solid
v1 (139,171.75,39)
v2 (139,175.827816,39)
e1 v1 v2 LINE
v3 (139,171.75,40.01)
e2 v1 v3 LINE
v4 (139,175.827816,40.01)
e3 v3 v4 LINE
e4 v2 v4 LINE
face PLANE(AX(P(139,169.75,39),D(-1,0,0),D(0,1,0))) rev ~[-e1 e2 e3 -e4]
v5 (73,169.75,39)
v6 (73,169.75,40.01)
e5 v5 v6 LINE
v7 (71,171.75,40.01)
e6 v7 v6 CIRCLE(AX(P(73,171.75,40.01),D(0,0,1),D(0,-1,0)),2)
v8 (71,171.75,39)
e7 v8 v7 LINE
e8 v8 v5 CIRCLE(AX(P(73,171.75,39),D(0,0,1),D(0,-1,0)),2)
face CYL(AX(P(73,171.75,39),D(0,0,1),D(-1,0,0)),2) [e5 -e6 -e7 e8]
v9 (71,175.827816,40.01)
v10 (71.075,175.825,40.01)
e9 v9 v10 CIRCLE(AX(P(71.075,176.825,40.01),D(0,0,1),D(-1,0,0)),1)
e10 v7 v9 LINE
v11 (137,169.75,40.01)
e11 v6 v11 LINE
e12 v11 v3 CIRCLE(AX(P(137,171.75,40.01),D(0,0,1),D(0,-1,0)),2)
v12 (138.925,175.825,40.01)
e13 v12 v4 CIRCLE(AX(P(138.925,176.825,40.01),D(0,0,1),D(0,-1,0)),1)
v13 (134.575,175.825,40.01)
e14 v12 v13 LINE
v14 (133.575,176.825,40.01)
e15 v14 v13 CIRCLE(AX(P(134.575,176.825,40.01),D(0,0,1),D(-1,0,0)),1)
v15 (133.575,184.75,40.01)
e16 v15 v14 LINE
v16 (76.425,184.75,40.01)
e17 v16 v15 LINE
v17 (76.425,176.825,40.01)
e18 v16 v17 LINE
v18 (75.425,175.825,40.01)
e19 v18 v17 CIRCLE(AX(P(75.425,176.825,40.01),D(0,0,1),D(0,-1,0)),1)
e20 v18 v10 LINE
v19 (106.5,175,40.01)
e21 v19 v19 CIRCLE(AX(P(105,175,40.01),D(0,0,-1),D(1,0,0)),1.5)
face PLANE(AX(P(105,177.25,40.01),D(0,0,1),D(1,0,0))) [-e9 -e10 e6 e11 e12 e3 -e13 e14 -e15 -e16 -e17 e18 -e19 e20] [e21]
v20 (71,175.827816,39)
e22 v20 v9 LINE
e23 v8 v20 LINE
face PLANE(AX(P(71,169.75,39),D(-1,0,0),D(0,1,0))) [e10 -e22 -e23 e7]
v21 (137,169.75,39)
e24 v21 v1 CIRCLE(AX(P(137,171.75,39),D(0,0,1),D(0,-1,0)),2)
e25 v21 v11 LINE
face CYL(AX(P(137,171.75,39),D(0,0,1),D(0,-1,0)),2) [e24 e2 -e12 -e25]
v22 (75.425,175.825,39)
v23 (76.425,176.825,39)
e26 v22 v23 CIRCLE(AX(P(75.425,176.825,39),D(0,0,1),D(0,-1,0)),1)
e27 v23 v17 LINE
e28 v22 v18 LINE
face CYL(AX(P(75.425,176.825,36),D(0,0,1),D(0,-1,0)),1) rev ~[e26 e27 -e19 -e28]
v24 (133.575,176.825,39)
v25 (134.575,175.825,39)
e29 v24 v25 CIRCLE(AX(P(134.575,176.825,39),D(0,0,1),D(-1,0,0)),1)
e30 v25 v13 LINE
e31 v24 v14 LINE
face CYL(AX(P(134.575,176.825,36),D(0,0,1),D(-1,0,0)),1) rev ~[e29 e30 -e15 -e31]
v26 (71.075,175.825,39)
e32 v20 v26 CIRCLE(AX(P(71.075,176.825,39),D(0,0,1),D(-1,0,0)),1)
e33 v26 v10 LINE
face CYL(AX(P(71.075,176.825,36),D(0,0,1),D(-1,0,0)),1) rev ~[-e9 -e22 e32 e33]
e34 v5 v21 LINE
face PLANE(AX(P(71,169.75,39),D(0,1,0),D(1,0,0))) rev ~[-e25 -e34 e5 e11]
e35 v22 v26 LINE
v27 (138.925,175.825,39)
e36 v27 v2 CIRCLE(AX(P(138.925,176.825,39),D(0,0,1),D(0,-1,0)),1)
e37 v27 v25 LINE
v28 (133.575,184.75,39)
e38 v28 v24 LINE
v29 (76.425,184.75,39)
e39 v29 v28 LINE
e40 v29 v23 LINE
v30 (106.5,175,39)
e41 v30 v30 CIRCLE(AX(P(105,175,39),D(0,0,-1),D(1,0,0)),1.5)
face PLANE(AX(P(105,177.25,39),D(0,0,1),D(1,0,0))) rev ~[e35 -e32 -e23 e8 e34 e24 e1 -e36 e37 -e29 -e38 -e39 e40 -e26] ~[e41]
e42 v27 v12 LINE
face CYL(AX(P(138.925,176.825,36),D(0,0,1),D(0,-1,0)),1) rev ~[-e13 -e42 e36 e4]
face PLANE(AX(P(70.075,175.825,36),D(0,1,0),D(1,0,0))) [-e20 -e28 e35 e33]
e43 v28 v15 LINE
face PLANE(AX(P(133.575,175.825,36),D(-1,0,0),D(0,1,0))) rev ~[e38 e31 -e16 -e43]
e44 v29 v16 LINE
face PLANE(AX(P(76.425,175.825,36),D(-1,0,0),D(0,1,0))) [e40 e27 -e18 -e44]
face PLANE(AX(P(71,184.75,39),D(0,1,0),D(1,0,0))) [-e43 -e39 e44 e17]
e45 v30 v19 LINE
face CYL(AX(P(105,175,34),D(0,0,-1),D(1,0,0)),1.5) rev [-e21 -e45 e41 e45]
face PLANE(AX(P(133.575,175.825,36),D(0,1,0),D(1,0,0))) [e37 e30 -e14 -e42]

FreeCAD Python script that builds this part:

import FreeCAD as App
import Part
import Sketcher

V = App.Vector
Q = App.Units.Quantity


def edges_at(feature, points):
    """Names of the edges that pass closest to the given points."""
    edges = feature.Shape.Edges
    near = lambda p: min(range(len(edges)), key=lambda i: edges[i].distToShape(Part.Vertex(*p))[0])
    return sorted({f"Edge{near(p) + 1}" for p in points})


def add_polygon(sketch, points):
    """Adds a closed chain of lines whose ends are joined by coincident constraints."""
    first, n = sketch.GeometryCount, len(points)
    for a, b in zip(points, points[1:] + points[:1]):
        sketch.addGeometry(Part.LineSegment(App.Vector(*a, 0), App.Vector(*b, 0)), False)
    for i in range(n):
        sketch.addConstraint(Sketcher.Constraint("Coincident", first + i, 2, first + (i + 1) % n, 1))

doc = App.newDocument("Part")
params = doc.addObject("Spreadsheet::Sheet", "Params")
for row, (alias, value) in enumerate([
    ("sketch1_diameter", "3 mm"),
    ("pad1_length", "10 mm"),
    ("pad2_length", "56.5 mm"),
    ("pad3_length", "55.5 mm"),
    ("sketch4_height", "15 mm"),
    ("sketch4_width", "6.35 mm"),
    ("pad4_length", "10 mm"),
    ("fillet_radius", "1 mm"),
    ("sketch5_height", "15 mm"),
    ("sketch5_width", "6.35 mm"),
    ("pad5_length", "10 mm"),
    ("fillet2_radius", "1 mm"),
    ("sketch6_width", "68 mm"),
    ("sketch6_height", "15 mm"),
    ("pad6_length", "1.01 mm"),
    ("fillet3_radius", "2 mm"),
], start=1):
    params.set(f"A{row}", alias)
    params.set(f"B{row}", "=" + value)
    params.setAlias(f"B{row}", alias)

body = doc.addObject("PartDesign::Body", "Body")

# Sketch on XY plane
sketch1 = doc.addObject("Sketcher::SketchObject", "Sketch")
body.addObject(sketch1)
sketch1.AttachmentSupport = (doc.XY_Plane, [""])
sketch1.MapMode = "FlatFace"
sketch1.AttachmentOffset = App.Placement(V(0, 0, 34), App.Rotation())
sketch1.addGeometry(Part.Circle(V(105, 175, 0), V(0, 0, 1), 1.5), False)
sketch1.addConstraint(Sketcher.Constraint("Diameter", 0, Q("3 mm")))
sketch1.addConstraint(Sketcher.Constraint("DistanceX", -1, 1, 0, 3, Q("105 mm")))
sketch1.addConstraint(Sketcher.Constraint("DistanceY", -1, 1, 0, 3, Q("175 mm")))
sketch1.setExpression("Constraints[0]", "Params.sketch1_diameter")
pad1 = doc.addObject("PartDesign::Pad", "Pad")
body.addObject(pad1)
pad1.Profile = sketch1
pad1.setExpression("Length", "Params.pad1_length")
body2 = doc.addObject("PartDesign::Body", "Body001")

# Sketch on XY plane
sketch2 = doc.addObject("Sketcher::SketchObject", "Sketch001")
body2.addObject(sketch2)
sketch2.AttachmentSupport = (doc.getObject("XY_Plane001"), [""])
sketch2.MapMode = "FlatFace"
sketch2.AttachmentOffset = App.Placement(V(0, 0, 4), App.Rotation())
sketch2.addGeometry(Part.Circle(V(73.2, 179.8, 0), V(0, 0, 1), 2.6), False)
sketch2.addConstraint(Sketcher.Constraint("DistanceX", -1, 1, 0, 3, Q("73.25 mm")))
sketch2.addConstraint(Sketcher.Constraint("DistanceY", -1, 1, 0, 3, Q("179.75 mm")))
sketch2.addConstraint(Sketcher.Constraint("Diameter", 0, Q("5.159374 mm")))
pad2 = doc.addObject("PartDesign::Pad", "Pad001")
body2.addObject(pad2)
pad2.Profile = sketch2
pad2.setExpression("Length", "Params.pad2_length")
body3 = doc.addObject("PartDesign::Body", "Body002")

# Sketch on XY plane
sketch3 = doc.addObject("Sketcher::SketchObject", "Sketch002")
body3.addObject(sketch3)
sketch3.AttachmentSupport = (doc.getObject("XY_Plane002"), [""])
sketch3.MapMode = "FlatFace"
sketch3.AttachmentOffset = App.Placement(V(0, 0, 4), App.Rotation())
sketch3.addGeometry(Part.Circle(V(136.8, 179.8, 0), V(0, 0, 1), 2.6), False)
sketch3.addConstraint(Sketcher.Constraint("DistanceX", -1, 1, 0, 3, Q("136.75 mm")))
sketch3.addConstraint(Sketcher.Constraint("DistanceY", -1, 1, 0, 3, Q("179.75 mm")))
sketch3.addConstraint(Sketcher.Constraint("Diameter", 0, Q("5.159374 mm")))
pad3 = doc.addObject("PartDesign::Pad", "Pad002")
body3.addObject(pad3)
pad3.Profile = sketch3
pad3.setExpression("Length", "Params.pad3_length")
body4 = doc.addObject("PartDesign::Body", "Body003")

# Sketch on XY plane
sketch4 = doc.addObject("Sketcher::SketchObject", "Sketch003")
body4.addObject(sketch4)
sketch4.AttachmentSupport = (doc.getObject("XY_Plane003"), [""])
sketch4.MapMode = "FlatFace"
sketch4.AttachmentOffset = App.Placement(V(0, 0, 36), App.Rotation())
add_polygon(sketch4, [(70, 191), (70, 176), (76, 176), (76, 191)])  # lines 0-3
sketch4.addConstraint(Sketcher.Constraint("Vertical", 0))
sketch4.addConstraint(Sketcher.Constraint("Horizontal", 1))
sketch4.addConstraint(Sketcher.Constraint("Vertical", 2))
sketch4.addConstraint(Sketcher.Constraint("Horizontal", 3))
sketch4.addConstraint(Sketcher.Constraint("DistanceY", 0, 2, 0, 1, Q("15 mm")))
sketch4.addConstraint(Sketcher.Constraint("DistanceX", 1, 1, 1, 2, Q("6.35 mm")))
sketch4.addConstraint(Sketcher.Constraint("DistanceX", -1, 1, 0, 2, Q("70.075 mm")))
sketch4.addConstraint(Sketcher.Constraint("DistanceY", -1, 1, 0, 2, Q("175.825 mm")))
sketch4.setExpression("Constraints[8]", "Params.sketch4_height")
sketch4.setExpression("Constraints[9]", "Params.sketch4_width")
pad4 = doc.addObject("PartDesign::Pad", "Pad003")
body4.addObject(pad4)
pad4.Profile = sketch4
pad4.setExpression("Length", "Params.pad4_length")
doc.recompute()

fillet = doc.addObject("PartDesign::Fillet", "Fillet")
body4.addObject(fillet)
fillet.Base = (pad4, edges_at(pad4, [(70.075, 175.825, 41), (76.425, 175.825, 41)]))
fillet.setExpression("Radius", "Params.fillet_radius")
body5 = doc.addObject("PartDesign::Body", "Body004")
doc.recompute()

body4.Placement = App.Placement(V(63.5, 0, 0), App.Rotation(V(0, 0, 1), 0))
boolean = doc.addObject("PartDesign::Boolean", "Boolean")
body5.addObject(boolean)
boolean.Type = "Fuse"
boolean.addObjects([body4])
body6 = doc.addObject("PartDesign::Body", "Body005")
body6.AllowCompound = True

# Sketch on XY plane
sketch5 = doc.addObject("Sketcher::SketchObject", "Sketch004")
body6.addObject(sketch5)
sketch5.AttachmentSupport = (doc.getObject("XY_Plane005"), [""])
sketch5.MapMode = "FlatFace"
sketch5.AttachmentOffset = App.Placement(V(0, 0, 36), App.Rotation())
add_polygon(sketch5, [(70, 191), (70, 176), (76, 176), (76, 191)])  # lines 0-3
sketch5.addConstraint(Sketcher.Constraint("Vertical", 0))
sketch5.addConstraint(Sketcher.Constraint("Horizontal", 1))
sketch5.addConstraint(Sketcher.Constraint("Vertical", 2))
sketch5.addConstraint(Sketcher.Constraint("Horizontal", 3))
sketch5.addConstraint(Sketcher.Constraint("DistanceY", 0, 2, 0, 1, Q("15 mm")))
sketch5.addConstraint(Sketcher.Constraint("DistanceX", 1, 1, 1, 2, Q("6.35 mm")))
sketch5.addConstraint(Sketcher.Constraint("DistanceX", -1, 1, 0, 2, Q("70.075 mm")))
sketch5.addConstraint(Sketcher.Constraint("DistanceY", -1, 1, 0, 2, Q("175.825 mm")))
sketch5.setExpression("Constraints[8]", "Params.sketch5_height")
sketch5.setExpression("Constraints[9]", "Params.sketch5_width")
pad5 = doc.addObject("PartDesign::Pad", "Pad004")
body6.addObject(pad5)
pad5.Profile = sketch5
pad5.setExpression("Length", "Params.pad5_length")
doc.recompute()

fillet2 = doc.addObject("PartDesign::Fillet", "Fillet001")
body6.addObject(fillet2)
fillet2.Base = (pad5, edges_at(pad5, [(70.075, 175.825, 41), (76.425, 175.825, 41)]))
fillet2.setExpression("Radius", "Params.fillet2_radius")
doc.recompute()

boolean2 = doc.addObject("PartDesign::Boolean", "Boolean001")
body6.addObject(boolean2)
boolean2.Type = "Fuse"
boolean2.addObjects([body2])
doc.recompute()

boolean3 = doc.addObject("PartDesign::Boolean", "Boolean002")
body6.addObject(boolean3)
boolean3.Type = "Fuse"
boolean3.addObjects([body3])
doc.recompute()

boolean4 = doc.addObject("PartDesign::Boolean", "Boolean003")
body6.addObject(boolean4)
boolean4.Type = "Fuse"
boolean4.addObjects([body5])
body7 = doc.addObject("PartDesign::Body", "Body006")

# Sketch on XY plane
sketch6 = doc.addObject("Sketcher::SketchObject", "Sketch005")
body7.addObject(sketch6)
sketch6.AttachmentSupport = (doc.getObject("XY_Plane006"), [""])
sketch6.MapMode = "FlatFace"
sketch6.AttachmentOffset = App.Placement(V(0, 0, 39), App.Rotation())
add_polygon(sketch6, [(71, 185), (71, 170), (139, 170), (139, 185)])  # lines 0-3
sketch6.addConstraint(Sketcher.Constraint("Vertical", 0))
sketch6.addConstraint(Sketcher.Constraint("Horizontal", 1))
sketch6.addConstraint(Sketcher.Constraint("Vertical", 2))
sketch6.addConstraint(Sketcher.Constraint("Horizontal", 3))
sketch6.addConstraint(Sketcher.Constraint("DistanceX", 1, 1, 1, 2, Q("68 mm")))
sketch6.addConstraint(Sketcher.Constraint("DistanceY", 0, 2, 0, 1, Q("15 mm")))
sketch6.addConstraint(Sketcher.Constraint("DistanceX", -1, 1, 0, 2, Q("71 mm")))
sketch6.addConstraint(Sketcher.Constraint("DistanceY", -1, 1, 0, 2, Q("169.75 mm")))
sketch6.setExpression("Constraints[8]", "Params.sketch6_width")
sketch6.setExpression("Constraints[9]", "Params.sketch6_height")
pad6 = doc.addObject("PartDesign::Pad", "Pad005")
body7.addObject(pad6)
pad6.Profile = sketch6
pad6.setExpression("Length", "Params.pad6_length")
doc.recompute()

fillet3 = doc.addObject("PartDesign::Fillet", "Fillet002")
body7.addObject(fillet3)
fillet3.Base = (pad6, edges_at(pad6, [
    (71, 169.75, 39.505),
    (71, 184.75, 39.505),
    (139, 169.75, 39.505),
    (139, 184.75, 39.505),
]))
fillet3.setExpression("Radius", "Params.fillet3_radius")
doc.recompute()

boolean5 = doc.addObject("PartDesign::Boolean", "Boolean004")
body7.addObject(boolean5)
boolean5.Type = "Cut"
boolean5.addObjects([body6])
doc.recompute()

boolean6 = doc.addObject("PartDesign::Boolean", "Boolean005")
body7.addObject(boolean6)
boolean6.Type = "Cut"
boolean6.addObjects([body])

doc.recompute()
